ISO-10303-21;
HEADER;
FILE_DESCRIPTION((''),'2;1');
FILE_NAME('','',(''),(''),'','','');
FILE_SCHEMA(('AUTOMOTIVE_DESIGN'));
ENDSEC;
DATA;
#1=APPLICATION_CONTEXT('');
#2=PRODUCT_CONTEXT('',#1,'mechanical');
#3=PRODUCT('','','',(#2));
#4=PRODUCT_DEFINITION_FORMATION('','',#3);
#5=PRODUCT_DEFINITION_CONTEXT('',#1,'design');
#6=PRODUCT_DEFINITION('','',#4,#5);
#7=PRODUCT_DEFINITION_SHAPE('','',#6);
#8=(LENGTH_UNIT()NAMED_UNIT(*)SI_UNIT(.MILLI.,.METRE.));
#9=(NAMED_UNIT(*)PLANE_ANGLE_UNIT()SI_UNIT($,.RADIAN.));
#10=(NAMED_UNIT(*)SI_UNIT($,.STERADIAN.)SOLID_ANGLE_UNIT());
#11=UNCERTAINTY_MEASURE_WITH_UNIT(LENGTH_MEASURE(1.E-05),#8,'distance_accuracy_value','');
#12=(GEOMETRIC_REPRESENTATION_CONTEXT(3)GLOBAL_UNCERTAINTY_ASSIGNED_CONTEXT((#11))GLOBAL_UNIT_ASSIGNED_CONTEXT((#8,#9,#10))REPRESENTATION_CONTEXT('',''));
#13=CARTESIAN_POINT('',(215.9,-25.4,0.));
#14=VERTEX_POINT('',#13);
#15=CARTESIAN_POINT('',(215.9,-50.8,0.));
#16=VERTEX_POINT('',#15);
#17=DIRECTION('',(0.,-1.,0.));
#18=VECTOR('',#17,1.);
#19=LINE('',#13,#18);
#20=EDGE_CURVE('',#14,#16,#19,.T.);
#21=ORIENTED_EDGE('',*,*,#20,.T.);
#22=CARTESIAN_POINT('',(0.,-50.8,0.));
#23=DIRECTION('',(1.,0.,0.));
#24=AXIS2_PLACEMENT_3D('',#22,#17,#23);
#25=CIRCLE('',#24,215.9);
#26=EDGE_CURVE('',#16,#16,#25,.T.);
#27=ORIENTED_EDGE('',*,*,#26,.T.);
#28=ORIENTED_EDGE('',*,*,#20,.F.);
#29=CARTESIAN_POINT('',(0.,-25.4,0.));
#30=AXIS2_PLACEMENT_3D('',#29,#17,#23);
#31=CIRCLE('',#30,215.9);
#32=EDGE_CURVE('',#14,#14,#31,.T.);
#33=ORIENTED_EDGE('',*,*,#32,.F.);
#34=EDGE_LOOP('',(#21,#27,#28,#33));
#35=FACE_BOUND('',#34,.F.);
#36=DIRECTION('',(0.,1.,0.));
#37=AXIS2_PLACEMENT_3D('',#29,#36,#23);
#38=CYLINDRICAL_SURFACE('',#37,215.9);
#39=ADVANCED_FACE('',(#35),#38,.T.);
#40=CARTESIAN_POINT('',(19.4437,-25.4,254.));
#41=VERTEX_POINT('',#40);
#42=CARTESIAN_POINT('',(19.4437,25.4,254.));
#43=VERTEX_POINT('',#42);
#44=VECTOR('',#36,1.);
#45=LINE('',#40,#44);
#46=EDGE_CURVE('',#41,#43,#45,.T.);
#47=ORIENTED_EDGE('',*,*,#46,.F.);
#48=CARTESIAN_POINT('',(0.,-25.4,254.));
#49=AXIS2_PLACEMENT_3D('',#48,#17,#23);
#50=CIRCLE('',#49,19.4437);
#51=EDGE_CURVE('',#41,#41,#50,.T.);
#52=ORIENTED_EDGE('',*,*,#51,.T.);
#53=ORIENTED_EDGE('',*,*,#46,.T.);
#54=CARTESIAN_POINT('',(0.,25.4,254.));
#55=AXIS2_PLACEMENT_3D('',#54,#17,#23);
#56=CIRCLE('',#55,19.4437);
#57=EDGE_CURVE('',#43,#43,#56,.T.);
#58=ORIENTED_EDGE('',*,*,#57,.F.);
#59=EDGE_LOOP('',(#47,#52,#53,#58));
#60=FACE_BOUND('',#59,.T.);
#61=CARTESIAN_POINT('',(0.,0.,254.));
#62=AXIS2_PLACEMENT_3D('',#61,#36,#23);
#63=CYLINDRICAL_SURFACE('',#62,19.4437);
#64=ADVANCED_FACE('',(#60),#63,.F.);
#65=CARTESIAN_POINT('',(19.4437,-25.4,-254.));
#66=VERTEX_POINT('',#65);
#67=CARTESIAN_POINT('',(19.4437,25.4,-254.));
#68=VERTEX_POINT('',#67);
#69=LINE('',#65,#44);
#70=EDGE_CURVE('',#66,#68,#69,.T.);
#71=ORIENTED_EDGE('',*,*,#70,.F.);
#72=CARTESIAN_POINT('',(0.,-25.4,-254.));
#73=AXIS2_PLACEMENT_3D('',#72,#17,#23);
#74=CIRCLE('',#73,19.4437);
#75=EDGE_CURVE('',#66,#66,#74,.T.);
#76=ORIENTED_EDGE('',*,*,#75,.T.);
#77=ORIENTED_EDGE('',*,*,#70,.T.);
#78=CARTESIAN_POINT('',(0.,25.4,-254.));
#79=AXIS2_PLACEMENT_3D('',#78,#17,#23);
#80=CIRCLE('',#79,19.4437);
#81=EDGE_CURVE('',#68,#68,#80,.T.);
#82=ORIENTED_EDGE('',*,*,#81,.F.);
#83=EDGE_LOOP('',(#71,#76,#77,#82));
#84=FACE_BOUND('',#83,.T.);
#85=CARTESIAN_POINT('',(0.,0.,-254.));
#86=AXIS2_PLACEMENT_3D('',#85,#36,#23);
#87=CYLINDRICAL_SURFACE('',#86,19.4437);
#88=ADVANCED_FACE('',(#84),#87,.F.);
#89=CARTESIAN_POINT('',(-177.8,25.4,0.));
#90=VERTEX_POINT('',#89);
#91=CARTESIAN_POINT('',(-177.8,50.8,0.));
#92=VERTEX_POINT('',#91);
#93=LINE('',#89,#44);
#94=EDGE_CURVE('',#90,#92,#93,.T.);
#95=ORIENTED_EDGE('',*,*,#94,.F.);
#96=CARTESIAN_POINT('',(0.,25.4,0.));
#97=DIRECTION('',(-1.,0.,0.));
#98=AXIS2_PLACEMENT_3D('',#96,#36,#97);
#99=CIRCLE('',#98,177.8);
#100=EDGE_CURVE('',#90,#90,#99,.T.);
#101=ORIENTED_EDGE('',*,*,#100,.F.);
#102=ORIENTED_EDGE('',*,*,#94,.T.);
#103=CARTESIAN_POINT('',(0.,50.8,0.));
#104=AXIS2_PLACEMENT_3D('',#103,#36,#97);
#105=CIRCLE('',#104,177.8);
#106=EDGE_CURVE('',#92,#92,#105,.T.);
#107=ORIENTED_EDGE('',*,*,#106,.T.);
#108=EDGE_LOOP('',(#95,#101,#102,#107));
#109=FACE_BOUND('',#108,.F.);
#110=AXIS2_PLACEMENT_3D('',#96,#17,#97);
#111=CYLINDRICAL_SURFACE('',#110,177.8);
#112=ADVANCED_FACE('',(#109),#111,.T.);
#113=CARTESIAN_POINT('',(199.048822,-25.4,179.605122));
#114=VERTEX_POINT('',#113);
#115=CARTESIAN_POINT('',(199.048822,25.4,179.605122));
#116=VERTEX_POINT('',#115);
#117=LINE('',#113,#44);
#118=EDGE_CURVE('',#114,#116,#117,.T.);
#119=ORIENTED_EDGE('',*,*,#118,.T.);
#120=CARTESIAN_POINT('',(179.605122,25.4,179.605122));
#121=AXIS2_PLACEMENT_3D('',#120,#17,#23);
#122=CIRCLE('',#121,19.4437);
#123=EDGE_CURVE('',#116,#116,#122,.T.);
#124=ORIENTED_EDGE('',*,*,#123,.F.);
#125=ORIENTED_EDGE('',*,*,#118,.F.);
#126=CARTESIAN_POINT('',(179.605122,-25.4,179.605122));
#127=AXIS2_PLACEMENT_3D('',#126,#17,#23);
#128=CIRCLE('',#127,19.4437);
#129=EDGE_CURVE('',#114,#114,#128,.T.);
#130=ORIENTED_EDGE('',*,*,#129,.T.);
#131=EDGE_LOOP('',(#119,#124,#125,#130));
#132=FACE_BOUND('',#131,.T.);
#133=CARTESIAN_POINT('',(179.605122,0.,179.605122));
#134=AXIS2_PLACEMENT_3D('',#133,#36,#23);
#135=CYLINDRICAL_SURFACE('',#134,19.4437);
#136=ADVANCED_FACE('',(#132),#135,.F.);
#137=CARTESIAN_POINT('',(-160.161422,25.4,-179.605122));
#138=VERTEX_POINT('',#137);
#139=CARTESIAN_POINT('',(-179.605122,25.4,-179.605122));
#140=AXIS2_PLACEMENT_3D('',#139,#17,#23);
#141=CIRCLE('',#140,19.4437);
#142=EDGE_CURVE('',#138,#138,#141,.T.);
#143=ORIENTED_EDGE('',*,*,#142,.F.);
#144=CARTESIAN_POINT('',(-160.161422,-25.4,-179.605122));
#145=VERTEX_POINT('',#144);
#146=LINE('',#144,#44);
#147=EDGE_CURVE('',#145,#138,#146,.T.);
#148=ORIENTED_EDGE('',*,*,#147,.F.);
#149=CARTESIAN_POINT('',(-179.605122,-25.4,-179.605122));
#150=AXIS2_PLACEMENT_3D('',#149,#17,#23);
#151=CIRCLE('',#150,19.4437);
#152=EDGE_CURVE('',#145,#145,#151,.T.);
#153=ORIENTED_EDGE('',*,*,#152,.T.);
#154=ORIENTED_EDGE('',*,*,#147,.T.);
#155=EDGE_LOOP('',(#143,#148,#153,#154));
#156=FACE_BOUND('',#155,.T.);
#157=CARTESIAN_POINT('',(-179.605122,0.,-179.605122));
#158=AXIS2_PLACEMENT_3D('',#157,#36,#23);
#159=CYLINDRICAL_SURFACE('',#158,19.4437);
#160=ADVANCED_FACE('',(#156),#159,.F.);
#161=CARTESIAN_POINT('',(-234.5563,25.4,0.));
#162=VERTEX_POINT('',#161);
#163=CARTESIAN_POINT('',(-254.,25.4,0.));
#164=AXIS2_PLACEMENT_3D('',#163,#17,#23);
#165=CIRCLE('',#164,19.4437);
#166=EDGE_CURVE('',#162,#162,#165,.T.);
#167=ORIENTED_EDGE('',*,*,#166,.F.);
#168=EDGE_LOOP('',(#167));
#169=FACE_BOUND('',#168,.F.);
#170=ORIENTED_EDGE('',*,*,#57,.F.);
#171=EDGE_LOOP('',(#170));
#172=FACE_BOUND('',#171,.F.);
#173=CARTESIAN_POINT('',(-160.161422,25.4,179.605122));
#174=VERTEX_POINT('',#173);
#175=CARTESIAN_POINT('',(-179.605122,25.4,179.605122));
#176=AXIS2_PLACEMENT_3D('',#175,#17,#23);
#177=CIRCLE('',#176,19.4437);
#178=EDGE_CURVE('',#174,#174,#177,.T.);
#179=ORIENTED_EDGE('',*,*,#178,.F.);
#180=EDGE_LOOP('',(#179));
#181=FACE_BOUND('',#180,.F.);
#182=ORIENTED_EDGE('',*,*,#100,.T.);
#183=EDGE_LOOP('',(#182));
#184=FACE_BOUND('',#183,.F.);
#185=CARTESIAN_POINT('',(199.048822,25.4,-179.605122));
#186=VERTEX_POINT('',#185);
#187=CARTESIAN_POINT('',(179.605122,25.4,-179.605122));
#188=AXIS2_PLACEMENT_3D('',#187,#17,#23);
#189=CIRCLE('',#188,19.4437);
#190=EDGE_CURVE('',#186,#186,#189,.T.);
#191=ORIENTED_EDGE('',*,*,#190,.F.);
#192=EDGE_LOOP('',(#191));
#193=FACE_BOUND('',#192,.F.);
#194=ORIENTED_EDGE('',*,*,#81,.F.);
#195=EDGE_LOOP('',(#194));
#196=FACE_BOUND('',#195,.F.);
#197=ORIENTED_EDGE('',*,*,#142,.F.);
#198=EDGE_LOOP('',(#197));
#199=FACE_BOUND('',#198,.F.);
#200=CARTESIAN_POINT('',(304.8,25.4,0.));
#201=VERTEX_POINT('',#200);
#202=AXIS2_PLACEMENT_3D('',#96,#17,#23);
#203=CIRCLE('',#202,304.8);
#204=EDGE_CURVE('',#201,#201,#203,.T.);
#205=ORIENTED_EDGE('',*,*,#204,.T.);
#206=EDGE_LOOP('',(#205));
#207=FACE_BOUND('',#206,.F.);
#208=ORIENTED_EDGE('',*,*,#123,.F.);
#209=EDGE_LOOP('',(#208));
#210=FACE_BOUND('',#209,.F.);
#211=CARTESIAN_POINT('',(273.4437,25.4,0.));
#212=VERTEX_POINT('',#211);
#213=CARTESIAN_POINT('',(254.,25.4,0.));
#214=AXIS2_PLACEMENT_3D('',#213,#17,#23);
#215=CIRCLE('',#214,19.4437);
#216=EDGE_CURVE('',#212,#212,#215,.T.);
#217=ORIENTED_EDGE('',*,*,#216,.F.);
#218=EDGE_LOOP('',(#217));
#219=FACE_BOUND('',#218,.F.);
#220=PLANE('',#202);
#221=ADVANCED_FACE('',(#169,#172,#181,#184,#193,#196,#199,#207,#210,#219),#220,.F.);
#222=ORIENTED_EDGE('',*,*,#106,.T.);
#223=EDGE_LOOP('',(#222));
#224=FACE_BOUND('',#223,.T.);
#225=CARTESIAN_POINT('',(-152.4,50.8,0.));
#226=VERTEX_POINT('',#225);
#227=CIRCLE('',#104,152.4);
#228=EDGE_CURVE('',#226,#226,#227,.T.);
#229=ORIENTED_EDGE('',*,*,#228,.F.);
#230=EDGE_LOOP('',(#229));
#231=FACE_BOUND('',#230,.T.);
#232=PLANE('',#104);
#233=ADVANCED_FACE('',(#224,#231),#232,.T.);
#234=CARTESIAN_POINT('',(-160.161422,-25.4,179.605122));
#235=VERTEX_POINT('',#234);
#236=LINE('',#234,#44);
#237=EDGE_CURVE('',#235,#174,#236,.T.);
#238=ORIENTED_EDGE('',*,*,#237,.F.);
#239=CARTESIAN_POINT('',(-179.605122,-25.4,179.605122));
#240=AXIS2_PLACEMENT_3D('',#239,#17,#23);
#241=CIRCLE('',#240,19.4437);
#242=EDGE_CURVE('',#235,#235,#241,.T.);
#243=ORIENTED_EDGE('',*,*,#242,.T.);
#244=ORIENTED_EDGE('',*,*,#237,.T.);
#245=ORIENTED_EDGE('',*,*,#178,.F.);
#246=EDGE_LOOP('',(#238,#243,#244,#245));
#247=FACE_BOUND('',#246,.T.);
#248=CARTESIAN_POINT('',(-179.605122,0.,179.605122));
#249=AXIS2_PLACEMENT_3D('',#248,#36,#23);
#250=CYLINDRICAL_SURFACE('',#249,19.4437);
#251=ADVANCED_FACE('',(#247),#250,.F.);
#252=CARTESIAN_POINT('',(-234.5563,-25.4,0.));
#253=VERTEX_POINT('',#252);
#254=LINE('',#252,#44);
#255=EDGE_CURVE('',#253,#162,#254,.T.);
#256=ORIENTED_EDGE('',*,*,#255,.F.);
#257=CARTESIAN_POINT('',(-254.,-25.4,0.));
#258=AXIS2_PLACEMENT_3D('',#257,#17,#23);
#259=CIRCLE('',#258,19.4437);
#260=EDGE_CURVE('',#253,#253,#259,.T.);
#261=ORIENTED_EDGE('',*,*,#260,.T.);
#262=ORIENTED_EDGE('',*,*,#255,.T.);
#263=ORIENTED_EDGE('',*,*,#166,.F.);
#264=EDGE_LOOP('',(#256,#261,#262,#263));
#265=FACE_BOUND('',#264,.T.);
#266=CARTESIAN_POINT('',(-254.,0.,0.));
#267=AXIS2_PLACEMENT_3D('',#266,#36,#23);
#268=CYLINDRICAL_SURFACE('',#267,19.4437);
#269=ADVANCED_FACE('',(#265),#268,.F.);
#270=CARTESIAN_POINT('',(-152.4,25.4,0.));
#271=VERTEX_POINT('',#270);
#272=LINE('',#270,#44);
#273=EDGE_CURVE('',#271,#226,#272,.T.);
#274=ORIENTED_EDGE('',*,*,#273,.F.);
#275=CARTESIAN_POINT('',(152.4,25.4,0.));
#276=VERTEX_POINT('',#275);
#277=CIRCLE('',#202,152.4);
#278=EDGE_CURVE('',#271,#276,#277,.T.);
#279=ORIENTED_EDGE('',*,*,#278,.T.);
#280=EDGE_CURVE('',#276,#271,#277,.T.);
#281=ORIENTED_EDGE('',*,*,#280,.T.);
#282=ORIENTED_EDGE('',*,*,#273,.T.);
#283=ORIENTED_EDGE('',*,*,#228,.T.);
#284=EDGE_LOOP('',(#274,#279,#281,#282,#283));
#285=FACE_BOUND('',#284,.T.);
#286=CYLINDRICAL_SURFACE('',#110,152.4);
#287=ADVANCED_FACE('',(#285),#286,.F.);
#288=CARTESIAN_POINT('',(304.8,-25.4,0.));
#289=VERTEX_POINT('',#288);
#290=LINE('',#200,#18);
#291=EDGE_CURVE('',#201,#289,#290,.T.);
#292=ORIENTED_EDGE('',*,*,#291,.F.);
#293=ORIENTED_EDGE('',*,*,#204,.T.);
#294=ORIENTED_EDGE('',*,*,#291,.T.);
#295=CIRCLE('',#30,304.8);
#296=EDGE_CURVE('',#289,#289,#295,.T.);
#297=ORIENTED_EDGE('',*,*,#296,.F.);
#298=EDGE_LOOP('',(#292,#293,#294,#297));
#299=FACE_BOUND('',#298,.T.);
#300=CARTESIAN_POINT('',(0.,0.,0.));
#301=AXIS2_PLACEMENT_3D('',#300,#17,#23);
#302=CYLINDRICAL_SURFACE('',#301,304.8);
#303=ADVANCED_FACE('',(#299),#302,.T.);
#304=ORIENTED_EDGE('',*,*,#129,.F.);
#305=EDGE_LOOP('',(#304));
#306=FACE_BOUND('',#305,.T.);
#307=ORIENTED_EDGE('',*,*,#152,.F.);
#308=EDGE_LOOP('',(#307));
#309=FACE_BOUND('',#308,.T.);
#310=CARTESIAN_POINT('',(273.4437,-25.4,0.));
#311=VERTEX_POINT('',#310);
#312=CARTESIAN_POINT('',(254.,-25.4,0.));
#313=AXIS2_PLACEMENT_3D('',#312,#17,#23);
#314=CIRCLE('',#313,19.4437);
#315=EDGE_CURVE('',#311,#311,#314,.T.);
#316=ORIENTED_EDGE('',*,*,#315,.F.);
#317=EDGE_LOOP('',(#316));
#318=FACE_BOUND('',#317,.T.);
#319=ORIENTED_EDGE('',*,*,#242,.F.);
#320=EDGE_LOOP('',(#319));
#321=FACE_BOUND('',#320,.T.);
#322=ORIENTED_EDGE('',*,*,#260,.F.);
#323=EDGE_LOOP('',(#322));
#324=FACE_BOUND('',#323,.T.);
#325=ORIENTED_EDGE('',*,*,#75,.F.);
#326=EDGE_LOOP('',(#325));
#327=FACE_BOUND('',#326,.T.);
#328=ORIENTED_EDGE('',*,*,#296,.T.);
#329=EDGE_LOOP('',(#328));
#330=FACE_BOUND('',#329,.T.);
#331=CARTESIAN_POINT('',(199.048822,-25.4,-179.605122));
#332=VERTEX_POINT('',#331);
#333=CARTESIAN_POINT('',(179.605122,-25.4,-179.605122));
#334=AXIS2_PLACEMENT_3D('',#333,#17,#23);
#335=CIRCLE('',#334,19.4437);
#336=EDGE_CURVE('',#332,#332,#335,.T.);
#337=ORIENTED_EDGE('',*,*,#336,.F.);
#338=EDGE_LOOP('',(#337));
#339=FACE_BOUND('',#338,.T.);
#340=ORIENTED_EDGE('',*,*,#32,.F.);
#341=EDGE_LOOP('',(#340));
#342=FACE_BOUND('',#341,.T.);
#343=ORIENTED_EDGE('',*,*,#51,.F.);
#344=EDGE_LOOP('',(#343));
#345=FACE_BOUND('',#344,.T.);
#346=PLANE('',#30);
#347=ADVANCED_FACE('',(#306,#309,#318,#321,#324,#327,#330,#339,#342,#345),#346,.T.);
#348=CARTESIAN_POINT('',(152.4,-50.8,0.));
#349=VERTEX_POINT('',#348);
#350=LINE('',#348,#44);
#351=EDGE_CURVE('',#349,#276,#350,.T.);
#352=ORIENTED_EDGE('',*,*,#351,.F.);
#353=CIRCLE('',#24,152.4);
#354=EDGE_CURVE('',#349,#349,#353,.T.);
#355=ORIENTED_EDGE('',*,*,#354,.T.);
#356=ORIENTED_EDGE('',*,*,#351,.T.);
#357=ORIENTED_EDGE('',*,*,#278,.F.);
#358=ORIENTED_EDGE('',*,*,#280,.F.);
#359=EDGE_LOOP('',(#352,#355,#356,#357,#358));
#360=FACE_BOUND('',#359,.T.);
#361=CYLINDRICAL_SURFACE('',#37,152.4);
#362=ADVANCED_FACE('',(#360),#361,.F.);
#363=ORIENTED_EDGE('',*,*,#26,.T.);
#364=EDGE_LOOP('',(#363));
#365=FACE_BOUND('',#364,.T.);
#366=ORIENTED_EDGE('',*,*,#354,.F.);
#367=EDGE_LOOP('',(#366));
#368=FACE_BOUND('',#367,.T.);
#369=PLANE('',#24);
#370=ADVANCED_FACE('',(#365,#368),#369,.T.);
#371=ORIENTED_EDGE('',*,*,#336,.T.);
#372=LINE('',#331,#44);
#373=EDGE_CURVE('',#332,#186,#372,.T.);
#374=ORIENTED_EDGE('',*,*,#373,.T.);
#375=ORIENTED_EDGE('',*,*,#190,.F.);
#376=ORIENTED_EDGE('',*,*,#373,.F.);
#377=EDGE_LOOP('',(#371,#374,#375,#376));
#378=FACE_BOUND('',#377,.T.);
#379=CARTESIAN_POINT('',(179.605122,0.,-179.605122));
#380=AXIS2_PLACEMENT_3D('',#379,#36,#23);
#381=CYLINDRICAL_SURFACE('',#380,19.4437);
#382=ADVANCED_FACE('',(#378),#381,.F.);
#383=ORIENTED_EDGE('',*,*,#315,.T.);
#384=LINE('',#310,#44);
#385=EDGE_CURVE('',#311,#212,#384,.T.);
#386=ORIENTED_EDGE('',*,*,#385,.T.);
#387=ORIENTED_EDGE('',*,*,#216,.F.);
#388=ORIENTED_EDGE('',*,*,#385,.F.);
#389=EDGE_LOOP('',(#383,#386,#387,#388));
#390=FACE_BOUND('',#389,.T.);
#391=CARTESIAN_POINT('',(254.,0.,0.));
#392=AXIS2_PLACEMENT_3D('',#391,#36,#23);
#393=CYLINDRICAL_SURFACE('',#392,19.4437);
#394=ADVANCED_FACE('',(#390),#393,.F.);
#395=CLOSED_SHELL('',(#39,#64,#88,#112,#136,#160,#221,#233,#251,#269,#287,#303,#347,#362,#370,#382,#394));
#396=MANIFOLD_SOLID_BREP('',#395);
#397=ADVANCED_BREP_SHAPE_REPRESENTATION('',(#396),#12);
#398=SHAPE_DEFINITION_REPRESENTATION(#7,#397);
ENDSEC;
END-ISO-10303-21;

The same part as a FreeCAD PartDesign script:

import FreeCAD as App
import Part
import Sketcher

V = App.Vector
Q = App.Units.Quantity

doc = App.newDocument("Part")
body = doc.addObject("PartDesign::Body", "Body")

# Sketch on XZ plane
sketch1 = body.newObject("Sketcher::SketchObject", "Sketch")
sketch1.AttachmentSupport = (doc.getObject("XZ_Plane"), [""])
sketch1.MapMode = "FlatFace"
sketch1.addGeometry([
    Part.Circle(V(0, 0, 0), V(0, 0, 1), 305),  # 0
    Part.Circle(V(-180, -180, 0), V(0, 0, 1), 19),  # 1
    Part.Circle(V(0, -254, 0), V(0, 0, 1), 19),  # 2
    Part.Circle(V(180, -180, 0), V(0, 0, 1), 19),  # 3
    Part.Circle(V(-254, 0, 0), V(0, 0, 1), 19),  # 4
    Part.Circle(V(-180, 180, 0), V(0, 0, 1), 19),  # 5
    Part.Circle(V(0, 0, 0), V(0, 0, 1), 152),  # 6
    Part.Circle(V(254, 0, 0), V(0, 0, 1), 19),  # 7
    Part.Circle(V(0, 254, 0), V(0, 0, 1), 19),  # 8
    Part.Circle(V(180, 180, 0), V(0, 0, 1), 19),  # 9
], False)
sketch1.addConstraint([
    Sketcher.Constraint("Coincident", 0, 3, -1, 1),
    Sketcher.Constraint("Coincident", 6, 3, -1, 1),
    Sketcher.Constraint("Equal", 1, 2),
    Sketcher.Constraint("Equal", 2, 3),
    Sketcher.Constraint("Equal", 3, 4),
    Sketcher.Constraint("Equal", 4, 5),
    Sketcher.Constraint("Equal", 5, 7),
    Sketcher.Constraint("Equal", 7, 8),
    Sketcher.Constraint("Equal", 8, 9),
    Sketcher.Constraint("Symmetric", 3, 3, 5, 3, -1, 1),
    Sketcher.Constraint("Symmetric", 4, 3, 7, 3, -1, 1),
    Sketcher.Constraint("Symmetric", 2, 3, 8, 3, -1, 1),
    Sketcher.Constraint("Symmetric", 1, 3, 9, 3, -1, 1),
    Sketcher.Constraint("Symmetric", 1, 3, 3, 3, -2),
    Sketcher.Constraint("PointOnObject", 2, 3, -2),
    Sketcher.Constraint("PointOnObject", 4, 3, -1),
    Sketcher.Constraint("Diameter", 0, Q("24 in")),
    Sketcher.Constraint("Diameter", 6, Q("12 in")),
    Sketcher.Constraint("Diameter", 1, Q("1.531 in")),
    Sketcher.Constraint("DistanceY", 2, 3, -1, 1, Q("10 in")),
    Sketcher.Constraint("DistanceX", 4, 3, -1, 1, Q("10 in")),
    Sketcher.Constraint("DistanceX", 1, 3, -1, 1, Q("179.605122 mm")),
    Sketcher.Constraint("DistanceY", 1, 3, -1, 1, Q("179.605122 mm")),
])
pad1 = body.newObject("PartDesign::Pad", "Pad")
pad1.Profile = sketch1
pad1.Length = Q("2 in")
pad1.Midplane = True

# Sketch on XZ plane
sketch2 = body.newObject("Sketcher::SketchObject", "Sketch001")
sketch2.AttachmentSupport = (doc.getObject("XZ_Plane"), [""])
sketch2.MapMode = "FlatFace"
sketch2.AttachmentOffset = App.Placement(V(0, 0, 1 * 25.4), App.Rotation())
sketch2.addGeometry([
    Part.Circle(V(0, 0, 0), V(0, 0, 1), 216),
    Part.Circle(V(0, 0, 0), V(0, 0, 1), 152),
], False)
sketch2.addConstraint([
    Sketcher.Constraint("Coincident", 0, 3, -1, 1),
    Sketcher.Constraint("Coincident", 1, 3, -1, 1),
    Sketcher.Constraint("Diameter", 0, Q("17 in")),
    Sketcher.Constraint("Diameter", 1, Q("12 in")),
])
pad2 = body.newObject("PartDesign::Pad", "Pad001")
pad2.Profile = sketch2
pad2.Length = Q("1 in")

# Sketch on XZ plane
sketch3 = body.newObject("Sketcher::SketchObject", "Sketch002")
sketch3.AttachmentSupport = (doc.getObject("XZ_Plane"), [""])
sketch3.MapMode = "FlatFace"
sketch3.AttachmentOffset = App.Placement(V(0, 0, -1 * 25.4), App.Rotation())
sketch3.addGeometry([
    Part.Circle(V(0, 0, 0), V(0, 0, 1), 178),
    Part.Circle(V(0, 0, 0), V(0, 0, 1), 152),
], False)
sketch3.addConstraint([
    Sketcher.Constraint("Coincident", 0, 3, -1, 1),
    Sketcher.Constraint("Coincident", 1, 3, -1, 1),
    Sketcher.Constraint("Diameter", 0, Q("14 in")),
    Sketcher.Constraint("Diameter", 1, Q("12 in")),
])
pad3 = body.newObject("PartDesign::Pad", "Pad002")
pad3.Profile = sketch3
pad3.Length = Q("1 in")
pad3.Reversed = True

doc.recompute()
